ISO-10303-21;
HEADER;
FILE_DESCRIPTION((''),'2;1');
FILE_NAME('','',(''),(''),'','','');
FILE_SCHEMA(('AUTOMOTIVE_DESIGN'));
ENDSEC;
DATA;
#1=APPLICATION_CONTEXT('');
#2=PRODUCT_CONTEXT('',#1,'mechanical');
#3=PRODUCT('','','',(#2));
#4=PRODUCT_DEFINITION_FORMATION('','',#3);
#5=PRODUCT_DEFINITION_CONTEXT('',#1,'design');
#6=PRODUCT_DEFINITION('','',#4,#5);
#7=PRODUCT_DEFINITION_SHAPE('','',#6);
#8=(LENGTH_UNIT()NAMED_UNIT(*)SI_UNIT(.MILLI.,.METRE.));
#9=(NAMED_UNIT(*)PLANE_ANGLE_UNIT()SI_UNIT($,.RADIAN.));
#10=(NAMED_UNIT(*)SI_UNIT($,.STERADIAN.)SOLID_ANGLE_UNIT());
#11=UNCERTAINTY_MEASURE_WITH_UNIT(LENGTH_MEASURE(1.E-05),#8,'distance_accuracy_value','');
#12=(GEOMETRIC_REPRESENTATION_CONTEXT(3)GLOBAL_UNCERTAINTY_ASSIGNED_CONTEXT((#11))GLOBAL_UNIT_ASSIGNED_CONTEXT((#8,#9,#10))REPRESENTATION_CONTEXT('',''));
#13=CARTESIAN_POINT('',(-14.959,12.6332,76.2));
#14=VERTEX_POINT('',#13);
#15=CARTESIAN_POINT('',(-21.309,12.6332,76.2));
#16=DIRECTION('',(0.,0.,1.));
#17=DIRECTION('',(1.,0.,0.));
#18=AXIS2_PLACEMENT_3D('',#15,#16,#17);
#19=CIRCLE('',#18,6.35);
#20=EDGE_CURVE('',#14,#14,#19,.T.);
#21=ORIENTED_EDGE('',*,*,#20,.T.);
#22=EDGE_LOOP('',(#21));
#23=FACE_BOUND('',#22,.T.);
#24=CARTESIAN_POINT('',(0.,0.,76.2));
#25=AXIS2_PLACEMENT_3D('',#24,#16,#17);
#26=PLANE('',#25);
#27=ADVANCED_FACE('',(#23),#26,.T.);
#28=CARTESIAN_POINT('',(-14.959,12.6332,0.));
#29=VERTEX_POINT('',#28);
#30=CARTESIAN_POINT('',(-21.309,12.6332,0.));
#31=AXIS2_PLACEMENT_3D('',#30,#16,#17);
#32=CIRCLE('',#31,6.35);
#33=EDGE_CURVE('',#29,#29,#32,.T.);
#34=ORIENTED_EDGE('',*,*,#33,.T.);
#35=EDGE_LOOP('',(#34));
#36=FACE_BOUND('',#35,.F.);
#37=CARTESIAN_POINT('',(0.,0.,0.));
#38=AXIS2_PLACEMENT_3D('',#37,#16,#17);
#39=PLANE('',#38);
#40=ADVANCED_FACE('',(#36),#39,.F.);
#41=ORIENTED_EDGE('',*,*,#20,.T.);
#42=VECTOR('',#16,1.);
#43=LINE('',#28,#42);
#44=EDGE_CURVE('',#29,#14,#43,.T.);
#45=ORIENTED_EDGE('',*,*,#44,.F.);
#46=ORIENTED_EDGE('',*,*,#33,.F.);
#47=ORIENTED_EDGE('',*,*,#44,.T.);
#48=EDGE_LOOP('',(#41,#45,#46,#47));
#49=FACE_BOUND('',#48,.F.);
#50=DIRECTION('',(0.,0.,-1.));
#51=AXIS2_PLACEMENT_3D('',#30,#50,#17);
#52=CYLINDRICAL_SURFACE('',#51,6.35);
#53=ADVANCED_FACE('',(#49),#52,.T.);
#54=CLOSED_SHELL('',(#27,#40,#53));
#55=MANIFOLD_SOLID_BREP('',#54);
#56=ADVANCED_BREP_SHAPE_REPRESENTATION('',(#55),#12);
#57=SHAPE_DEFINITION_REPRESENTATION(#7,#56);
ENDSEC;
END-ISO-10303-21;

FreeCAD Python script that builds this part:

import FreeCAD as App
import Part
import Sketcher
from FreeCAD import Vector
Q = App.Units.Quantity

doc = App.newDocument("Part")
params = doc.addObject("Spreadsheet::Sheet", "Params")
for row, (alias, value) in enumerate([
    ("sketch1_diameter", "0.5 in"),
    ("pad1_length", "3 in"),
], start=1):
    params.set(f"A{row}", alias)
    params.set(f"B{row}", "=" + value)
    params.setAlias(f"B{row}", alias)

body = doc.addObject("PartDesign::Body", "Body")

sketch1 = doc.addObject("Sketcher::SketchObject", "Sketch")
body.addObject(sketch1)
sketch1.AttachmentSupport = (doc.XY_Plane, [""])
sketch1.MapMode = "FlatFace"
sketch1.addGeometry(Part.Circle(Vector(-21, 13, 0), Vector(0, 0, 1), 6), False)
sketch1.addConstraint(Sketcher.Constraint("Diameter", 0, Q("0.5 in")))
sketch1.addConstraint(Sketcher.Constraint("DistanceX", 0, 3, -1, 1, 21.309))
sketch1.addConstraint(Sketcher.Constraint("DistanceY", -1, 1, 0, 3, 12.6332))
sketch1.setExpression("Constraints[0]", "Params.sketch1_diameter")
pad1 = doc.addObject("PartDesign::Pad", "Pad")
body.addObject(pad1)
pad1.Profile = sketch1
pad1.setExpression("Length", "Params.pad1_length")

doc.recompute()
